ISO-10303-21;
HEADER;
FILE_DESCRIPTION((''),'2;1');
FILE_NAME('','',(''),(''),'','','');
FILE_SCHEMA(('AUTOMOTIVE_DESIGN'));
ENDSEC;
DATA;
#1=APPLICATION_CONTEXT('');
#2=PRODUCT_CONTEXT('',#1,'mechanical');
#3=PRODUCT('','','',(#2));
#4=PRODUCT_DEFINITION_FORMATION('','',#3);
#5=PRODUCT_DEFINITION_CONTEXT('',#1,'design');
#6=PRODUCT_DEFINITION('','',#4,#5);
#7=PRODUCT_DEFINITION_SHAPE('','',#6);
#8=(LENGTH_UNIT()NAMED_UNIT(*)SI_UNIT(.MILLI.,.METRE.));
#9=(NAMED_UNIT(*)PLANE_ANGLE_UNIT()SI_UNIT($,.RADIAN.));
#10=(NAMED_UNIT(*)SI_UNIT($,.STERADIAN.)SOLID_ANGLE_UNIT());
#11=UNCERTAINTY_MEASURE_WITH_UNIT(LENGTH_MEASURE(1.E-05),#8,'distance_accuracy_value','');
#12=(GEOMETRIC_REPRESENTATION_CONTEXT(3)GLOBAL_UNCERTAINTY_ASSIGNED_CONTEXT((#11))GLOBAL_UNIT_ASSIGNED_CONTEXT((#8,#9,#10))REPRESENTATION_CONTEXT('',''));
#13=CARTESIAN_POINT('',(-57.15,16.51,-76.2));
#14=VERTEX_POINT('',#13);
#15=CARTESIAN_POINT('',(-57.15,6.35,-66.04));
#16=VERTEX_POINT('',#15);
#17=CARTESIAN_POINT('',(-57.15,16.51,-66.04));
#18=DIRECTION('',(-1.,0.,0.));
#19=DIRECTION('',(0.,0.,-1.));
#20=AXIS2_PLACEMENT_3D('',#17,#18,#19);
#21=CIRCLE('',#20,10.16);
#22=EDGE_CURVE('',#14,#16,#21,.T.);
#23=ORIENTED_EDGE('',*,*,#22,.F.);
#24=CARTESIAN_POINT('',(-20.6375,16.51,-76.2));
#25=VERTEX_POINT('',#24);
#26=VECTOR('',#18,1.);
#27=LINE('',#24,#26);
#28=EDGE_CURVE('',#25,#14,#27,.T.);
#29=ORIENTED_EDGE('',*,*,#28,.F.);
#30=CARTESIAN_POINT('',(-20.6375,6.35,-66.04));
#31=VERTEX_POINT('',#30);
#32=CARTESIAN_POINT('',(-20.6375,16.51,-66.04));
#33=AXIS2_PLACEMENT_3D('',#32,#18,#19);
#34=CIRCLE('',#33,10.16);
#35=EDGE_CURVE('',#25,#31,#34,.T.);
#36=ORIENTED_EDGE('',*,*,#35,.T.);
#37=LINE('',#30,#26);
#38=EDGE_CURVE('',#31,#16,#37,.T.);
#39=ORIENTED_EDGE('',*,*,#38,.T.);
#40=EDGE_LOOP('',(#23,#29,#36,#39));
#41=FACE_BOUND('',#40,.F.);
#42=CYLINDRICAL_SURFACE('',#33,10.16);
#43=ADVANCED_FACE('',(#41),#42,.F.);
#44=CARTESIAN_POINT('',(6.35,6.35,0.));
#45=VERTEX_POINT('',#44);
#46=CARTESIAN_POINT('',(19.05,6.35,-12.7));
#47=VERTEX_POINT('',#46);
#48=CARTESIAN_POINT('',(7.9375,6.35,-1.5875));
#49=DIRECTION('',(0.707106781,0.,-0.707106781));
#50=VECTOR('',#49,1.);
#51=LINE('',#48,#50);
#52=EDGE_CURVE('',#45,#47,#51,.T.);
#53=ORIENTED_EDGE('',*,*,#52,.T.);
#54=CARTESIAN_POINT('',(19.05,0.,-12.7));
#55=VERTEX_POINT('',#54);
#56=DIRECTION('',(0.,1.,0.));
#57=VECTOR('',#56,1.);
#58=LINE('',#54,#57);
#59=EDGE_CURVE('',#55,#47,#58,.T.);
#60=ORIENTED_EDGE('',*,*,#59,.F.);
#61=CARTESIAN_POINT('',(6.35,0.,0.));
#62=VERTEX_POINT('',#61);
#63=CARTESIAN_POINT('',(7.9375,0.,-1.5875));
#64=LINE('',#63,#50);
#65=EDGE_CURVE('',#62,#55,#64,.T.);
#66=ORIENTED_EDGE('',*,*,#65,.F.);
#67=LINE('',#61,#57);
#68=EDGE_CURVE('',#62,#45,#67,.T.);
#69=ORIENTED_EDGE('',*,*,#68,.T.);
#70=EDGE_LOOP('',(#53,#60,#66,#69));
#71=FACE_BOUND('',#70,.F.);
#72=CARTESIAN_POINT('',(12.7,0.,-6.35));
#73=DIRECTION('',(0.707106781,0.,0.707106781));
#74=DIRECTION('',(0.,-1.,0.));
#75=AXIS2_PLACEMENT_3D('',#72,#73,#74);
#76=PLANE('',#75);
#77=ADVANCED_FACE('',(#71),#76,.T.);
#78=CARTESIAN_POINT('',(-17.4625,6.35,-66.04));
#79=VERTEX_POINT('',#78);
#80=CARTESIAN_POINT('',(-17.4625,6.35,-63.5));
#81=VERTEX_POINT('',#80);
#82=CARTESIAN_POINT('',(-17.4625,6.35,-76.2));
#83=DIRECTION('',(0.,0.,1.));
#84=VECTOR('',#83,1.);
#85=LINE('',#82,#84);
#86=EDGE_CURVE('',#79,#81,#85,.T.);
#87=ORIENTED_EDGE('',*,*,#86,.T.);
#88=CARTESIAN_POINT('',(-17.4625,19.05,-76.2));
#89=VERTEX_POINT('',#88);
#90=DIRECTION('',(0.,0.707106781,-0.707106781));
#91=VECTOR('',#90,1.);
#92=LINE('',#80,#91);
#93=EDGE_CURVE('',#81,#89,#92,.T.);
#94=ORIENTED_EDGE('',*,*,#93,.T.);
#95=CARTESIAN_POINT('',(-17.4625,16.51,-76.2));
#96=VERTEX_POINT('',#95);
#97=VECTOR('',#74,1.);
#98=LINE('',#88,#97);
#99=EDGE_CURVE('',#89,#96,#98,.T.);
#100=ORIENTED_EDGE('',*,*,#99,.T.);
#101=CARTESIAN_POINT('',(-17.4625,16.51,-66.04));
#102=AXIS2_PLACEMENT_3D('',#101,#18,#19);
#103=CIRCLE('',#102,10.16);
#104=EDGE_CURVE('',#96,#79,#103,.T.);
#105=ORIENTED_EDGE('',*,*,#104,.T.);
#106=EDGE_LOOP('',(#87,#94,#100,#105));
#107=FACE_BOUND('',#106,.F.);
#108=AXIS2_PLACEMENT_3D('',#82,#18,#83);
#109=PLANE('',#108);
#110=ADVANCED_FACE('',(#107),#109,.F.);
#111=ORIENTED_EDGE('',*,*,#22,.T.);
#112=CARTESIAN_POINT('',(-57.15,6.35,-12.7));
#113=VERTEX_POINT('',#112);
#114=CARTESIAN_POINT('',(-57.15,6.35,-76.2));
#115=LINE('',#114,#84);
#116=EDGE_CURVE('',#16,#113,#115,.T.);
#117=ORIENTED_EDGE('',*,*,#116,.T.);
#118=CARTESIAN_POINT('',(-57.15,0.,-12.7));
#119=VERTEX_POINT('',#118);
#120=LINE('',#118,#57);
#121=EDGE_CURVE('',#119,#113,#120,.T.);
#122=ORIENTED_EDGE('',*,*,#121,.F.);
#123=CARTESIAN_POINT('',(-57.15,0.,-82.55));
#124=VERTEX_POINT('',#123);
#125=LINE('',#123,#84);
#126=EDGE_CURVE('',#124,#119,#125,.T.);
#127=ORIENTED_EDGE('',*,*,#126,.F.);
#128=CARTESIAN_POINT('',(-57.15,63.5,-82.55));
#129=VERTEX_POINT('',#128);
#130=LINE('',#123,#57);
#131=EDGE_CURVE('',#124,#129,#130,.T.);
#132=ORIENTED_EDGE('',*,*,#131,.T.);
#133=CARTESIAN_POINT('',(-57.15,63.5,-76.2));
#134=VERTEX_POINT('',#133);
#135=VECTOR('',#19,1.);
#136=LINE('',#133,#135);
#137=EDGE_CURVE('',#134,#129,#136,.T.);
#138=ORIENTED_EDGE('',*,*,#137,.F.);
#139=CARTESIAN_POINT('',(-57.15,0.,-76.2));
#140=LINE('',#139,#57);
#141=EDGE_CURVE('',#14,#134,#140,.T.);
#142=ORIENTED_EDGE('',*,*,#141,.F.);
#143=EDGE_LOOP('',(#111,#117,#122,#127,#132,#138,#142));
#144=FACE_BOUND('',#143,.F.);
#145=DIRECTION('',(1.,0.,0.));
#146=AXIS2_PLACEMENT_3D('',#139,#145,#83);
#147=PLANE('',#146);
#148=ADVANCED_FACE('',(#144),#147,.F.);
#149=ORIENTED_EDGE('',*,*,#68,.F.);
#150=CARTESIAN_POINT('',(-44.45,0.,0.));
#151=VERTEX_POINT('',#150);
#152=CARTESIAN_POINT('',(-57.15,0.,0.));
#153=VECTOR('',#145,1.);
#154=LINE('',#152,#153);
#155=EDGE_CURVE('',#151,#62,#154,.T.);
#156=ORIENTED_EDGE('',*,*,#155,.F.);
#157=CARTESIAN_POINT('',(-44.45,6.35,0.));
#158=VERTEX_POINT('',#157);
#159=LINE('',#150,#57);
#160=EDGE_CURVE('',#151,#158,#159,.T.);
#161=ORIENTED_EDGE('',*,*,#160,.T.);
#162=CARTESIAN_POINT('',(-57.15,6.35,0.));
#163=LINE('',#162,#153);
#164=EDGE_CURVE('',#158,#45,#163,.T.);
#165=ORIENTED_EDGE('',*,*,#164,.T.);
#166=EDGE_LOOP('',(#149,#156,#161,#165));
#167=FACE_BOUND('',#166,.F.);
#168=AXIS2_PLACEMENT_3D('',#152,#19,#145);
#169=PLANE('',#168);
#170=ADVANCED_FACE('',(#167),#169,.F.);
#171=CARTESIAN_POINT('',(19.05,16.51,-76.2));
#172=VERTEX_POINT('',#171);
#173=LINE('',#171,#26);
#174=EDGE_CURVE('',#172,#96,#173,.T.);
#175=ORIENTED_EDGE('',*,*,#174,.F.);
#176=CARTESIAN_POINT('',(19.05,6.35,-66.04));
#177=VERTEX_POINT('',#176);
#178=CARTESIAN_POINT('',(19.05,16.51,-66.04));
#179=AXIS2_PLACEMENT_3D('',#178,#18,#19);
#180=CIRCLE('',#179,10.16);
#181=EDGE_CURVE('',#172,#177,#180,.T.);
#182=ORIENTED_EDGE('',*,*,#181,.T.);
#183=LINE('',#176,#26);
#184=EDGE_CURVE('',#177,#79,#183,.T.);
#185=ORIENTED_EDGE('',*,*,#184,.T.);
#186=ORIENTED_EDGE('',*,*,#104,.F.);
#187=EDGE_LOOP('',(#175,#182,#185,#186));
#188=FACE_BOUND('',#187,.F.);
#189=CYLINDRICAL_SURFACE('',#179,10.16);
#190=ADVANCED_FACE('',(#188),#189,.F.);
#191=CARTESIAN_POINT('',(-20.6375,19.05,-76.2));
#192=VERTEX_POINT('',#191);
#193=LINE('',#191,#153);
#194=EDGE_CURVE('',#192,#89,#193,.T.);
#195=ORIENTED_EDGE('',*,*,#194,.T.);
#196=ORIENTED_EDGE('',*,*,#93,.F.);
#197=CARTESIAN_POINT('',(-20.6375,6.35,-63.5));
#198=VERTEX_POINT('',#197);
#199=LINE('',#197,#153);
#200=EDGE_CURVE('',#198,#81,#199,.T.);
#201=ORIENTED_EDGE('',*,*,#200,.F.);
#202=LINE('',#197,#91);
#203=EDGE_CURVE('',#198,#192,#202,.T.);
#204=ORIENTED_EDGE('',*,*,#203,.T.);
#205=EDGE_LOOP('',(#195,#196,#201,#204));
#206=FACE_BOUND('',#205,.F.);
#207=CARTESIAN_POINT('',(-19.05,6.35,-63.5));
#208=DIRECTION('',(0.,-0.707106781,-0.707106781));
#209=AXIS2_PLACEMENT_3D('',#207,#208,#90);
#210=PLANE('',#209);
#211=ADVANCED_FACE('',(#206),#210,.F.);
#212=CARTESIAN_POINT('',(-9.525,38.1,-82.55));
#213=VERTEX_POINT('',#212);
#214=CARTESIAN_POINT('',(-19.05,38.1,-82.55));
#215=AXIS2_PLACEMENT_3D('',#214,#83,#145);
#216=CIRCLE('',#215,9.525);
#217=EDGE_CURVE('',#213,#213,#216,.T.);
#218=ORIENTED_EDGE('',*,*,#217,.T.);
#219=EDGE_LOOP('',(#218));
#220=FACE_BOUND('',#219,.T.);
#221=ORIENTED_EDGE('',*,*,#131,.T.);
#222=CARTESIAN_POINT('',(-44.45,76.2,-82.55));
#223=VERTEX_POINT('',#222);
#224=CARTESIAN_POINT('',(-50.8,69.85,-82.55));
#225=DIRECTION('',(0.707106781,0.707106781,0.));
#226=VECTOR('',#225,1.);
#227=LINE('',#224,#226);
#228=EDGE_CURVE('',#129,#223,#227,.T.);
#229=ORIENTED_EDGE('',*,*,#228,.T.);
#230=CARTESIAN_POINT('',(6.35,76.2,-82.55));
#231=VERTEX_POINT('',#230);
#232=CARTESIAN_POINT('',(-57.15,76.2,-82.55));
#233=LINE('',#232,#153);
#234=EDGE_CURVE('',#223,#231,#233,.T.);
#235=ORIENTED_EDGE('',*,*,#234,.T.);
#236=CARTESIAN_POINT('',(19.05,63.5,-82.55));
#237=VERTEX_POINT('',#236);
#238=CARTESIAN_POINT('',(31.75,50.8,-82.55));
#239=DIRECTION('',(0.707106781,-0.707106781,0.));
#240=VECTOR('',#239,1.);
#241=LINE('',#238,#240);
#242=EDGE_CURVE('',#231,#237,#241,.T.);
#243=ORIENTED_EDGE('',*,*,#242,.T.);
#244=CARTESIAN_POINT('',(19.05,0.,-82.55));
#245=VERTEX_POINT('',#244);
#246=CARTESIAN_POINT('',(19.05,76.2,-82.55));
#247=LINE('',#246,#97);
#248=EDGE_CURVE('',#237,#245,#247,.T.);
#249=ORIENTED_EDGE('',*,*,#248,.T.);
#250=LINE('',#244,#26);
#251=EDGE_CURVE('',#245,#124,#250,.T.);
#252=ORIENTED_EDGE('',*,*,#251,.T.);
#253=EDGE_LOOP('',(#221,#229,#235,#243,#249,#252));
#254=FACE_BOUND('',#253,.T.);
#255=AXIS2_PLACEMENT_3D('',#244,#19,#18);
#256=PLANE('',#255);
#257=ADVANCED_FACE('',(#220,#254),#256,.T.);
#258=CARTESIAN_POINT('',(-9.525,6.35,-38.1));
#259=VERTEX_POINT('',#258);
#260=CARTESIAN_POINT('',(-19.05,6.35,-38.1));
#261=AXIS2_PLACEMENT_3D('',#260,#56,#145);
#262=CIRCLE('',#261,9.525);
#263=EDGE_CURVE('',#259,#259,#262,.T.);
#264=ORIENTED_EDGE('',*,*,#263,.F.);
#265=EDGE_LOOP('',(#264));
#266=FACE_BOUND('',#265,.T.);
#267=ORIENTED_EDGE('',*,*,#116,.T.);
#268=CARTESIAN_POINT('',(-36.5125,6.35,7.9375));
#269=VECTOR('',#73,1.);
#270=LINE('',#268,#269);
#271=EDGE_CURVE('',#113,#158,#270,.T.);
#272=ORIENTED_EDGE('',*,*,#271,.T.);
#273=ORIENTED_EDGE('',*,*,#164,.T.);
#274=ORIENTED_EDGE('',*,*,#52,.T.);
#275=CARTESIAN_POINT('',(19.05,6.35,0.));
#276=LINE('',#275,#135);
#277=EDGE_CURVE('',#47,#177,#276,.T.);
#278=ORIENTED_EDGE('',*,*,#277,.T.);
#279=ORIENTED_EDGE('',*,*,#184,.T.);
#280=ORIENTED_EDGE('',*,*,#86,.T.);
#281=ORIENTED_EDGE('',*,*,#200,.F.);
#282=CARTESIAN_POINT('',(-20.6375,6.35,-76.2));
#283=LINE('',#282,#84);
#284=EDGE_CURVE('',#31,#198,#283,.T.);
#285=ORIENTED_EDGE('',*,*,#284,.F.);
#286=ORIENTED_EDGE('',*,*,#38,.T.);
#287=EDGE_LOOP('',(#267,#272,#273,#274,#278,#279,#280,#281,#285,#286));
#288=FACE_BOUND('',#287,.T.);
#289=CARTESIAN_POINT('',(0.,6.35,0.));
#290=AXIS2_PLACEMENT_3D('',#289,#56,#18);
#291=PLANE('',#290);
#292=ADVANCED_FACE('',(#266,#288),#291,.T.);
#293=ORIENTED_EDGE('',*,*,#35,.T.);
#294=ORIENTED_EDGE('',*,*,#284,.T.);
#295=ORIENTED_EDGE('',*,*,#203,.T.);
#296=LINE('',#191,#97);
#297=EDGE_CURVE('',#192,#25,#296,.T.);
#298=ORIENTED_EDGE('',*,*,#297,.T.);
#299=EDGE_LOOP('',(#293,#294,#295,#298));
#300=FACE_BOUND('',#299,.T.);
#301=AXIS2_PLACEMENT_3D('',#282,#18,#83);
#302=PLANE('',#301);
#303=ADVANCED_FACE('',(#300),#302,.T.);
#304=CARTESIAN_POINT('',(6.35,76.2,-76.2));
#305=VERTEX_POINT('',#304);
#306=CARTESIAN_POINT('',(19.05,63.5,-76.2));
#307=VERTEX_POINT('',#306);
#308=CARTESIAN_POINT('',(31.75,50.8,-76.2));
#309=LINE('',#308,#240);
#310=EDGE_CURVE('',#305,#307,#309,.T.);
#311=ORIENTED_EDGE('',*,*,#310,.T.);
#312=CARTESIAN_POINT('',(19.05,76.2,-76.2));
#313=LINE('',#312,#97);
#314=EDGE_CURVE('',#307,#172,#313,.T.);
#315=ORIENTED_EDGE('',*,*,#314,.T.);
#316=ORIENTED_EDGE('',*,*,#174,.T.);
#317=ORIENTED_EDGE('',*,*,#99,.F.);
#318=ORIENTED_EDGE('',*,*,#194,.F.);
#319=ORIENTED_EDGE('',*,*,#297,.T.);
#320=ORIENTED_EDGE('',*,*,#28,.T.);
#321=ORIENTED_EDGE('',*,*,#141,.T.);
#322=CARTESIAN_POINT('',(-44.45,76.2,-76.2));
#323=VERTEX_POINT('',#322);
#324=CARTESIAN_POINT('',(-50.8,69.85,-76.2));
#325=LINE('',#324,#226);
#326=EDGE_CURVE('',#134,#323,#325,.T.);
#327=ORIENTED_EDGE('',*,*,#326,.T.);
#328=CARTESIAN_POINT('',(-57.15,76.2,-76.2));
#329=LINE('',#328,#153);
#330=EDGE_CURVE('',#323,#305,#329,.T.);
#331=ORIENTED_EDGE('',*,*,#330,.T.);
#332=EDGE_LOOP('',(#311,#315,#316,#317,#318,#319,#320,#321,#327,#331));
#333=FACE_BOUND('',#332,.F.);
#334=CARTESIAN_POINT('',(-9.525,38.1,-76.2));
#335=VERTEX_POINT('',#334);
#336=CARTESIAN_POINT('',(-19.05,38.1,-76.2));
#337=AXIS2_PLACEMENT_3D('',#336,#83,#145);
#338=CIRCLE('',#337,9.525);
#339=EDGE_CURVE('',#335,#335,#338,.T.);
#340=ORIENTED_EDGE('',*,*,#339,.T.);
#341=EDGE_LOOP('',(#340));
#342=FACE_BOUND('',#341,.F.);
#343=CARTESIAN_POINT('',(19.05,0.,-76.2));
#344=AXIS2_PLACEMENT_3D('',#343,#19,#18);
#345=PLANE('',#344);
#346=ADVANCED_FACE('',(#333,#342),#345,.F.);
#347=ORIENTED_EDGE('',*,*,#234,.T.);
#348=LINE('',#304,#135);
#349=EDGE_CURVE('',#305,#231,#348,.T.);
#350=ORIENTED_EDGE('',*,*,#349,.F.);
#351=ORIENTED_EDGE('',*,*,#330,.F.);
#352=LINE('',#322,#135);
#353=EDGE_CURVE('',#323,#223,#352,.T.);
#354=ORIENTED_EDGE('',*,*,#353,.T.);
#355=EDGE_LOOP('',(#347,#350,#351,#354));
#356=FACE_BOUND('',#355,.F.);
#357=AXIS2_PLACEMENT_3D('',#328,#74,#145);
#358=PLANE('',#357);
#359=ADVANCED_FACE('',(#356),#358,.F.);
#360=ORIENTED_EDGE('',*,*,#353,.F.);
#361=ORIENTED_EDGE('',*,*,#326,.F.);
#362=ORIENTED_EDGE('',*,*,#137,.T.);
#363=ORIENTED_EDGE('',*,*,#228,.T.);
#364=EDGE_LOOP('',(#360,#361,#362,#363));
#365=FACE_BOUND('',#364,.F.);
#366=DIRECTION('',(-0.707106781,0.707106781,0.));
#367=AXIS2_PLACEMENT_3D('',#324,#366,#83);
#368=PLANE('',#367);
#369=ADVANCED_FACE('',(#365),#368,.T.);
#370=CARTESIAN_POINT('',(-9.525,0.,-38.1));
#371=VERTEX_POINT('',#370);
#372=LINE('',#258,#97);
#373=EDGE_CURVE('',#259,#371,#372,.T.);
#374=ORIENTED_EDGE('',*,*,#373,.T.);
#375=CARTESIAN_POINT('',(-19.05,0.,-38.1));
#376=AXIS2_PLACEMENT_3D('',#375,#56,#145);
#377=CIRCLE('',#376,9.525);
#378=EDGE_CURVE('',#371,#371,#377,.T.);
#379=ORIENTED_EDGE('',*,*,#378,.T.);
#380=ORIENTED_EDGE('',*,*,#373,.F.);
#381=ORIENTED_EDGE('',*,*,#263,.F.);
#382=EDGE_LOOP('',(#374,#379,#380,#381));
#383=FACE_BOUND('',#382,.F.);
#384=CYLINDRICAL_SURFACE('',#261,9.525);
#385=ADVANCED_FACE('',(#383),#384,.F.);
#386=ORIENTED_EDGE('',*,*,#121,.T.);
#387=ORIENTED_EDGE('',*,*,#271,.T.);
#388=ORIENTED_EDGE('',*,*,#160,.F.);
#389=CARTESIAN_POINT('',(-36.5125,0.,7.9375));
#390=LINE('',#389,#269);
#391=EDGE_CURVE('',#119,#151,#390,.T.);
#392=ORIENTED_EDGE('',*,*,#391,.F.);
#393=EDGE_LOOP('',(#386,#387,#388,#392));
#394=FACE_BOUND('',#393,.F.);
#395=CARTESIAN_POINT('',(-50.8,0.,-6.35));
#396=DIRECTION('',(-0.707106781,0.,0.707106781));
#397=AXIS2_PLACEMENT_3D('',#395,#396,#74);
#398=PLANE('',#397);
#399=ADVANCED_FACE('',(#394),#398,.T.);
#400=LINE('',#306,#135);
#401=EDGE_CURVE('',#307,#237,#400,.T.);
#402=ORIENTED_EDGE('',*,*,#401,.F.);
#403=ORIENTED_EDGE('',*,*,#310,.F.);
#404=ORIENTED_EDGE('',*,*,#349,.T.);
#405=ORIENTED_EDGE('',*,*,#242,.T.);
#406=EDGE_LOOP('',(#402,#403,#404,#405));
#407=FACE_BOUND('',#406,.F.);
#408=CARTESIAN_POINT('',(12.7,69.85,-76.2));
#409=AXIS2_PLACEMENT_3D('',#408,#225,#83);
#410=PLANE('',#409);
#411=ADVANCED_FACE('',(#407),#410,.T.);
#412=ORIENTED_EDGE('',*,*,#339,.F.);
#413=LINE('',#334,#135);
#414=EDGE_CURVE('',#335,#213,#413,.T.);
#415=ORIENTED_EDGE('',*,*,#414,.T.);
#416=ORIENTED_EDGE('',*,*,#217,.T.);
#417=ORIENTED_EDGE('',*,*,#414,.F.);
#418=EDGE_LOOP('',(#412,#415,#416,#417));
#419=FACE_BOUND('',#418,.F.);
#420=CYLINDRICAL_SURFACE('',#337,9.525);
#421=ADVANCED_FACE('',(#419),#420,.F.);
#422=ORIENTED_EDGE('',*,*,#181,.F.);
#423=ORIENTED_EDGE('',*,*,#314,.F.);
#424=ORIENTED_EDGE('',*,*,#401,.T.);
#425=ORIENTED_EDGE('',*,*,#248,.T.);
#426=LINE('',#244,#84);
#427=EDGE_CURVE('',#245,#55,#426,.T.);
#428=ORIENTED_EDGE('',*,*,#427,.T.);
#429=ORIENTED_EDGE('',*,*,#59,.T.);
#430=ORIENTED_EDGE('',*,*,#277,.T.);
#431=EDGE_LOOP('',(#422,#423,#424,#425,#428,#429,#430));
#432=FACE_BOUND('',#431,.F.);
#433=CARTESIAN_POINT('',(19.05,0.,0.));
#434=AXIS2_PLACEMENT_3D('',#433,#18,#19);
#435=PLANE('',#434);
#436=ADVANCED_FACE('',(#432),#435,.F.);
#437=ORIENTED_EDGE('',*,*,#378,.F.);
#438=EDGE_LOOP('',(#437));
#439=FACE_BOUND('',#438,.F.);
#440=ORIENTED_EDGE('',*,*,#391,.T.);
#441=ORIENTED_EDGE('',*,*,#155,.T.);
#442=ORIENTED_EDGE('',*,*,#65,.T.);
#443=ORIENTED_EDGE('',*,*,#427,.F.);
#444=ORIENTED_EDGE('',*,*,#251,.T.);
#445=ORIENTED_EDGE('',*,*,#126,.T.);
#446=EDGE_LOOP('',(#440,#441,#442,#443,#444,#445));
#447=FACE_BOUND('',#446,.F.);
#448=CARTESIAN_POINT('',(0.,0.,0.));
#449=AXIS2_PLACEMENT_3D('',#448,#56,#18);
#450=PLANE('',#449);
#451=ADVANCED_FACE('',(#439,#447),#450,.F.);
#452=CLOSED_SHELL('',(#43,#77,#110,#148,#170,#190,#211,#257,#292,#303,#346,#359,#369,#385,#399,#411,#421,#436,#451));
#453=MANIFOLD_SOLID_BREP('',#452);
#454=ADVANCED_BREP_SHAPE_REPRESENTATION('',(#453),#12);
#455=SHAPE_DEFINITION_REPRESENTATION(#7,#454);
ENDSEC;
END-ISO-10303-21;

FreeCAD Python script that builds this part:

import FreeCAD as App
import Part
import Sketcher
from FreeCAD import Vector
Q = App.Units.Quantity


def edges_at(feature, points):
    """Names of the edges that pass closest to the given points."""
    edges = feature.Shape.Edges
    near = lambda p: min(range(len(edges)), key=lambda i: edges[i].distToShape(Part.Vertex(*p))[0])
    return sorted({f"Edge{near(p) + 1}" for p in points})


def add_polygon(sketch, points):
    """Adds a closed chain of lines whose ends are joined by coincident constraints."""
    first, n = sketch.GeometryCount, len(points)
    for a, b in zip(points, points[1:] + points[:1]):
        sketch.addGeometry(Part.LineSegment(App.Vector(*a, 0), App.Vector(*b, 0)), False)
    for i in range(n):
        sketch.addConstraint(Sketcher.Constraint("Coincident", first + i, 2, first + (i + 1) % n, 1))

doc = App.newDocument("Part")
body = doc.addObject("PartDesign::Body", "Body")

sketch1 = body.newObject("Sketcher::SketchObject", "Sketch")
sketch1.AttachmentSupport = (doc.getObject("XZ_Plane"), [""])
sketch1.MapMode = "FlatFace"
add_polygon(sketch1, [(-57.15, -76.2), (-57.15, 0), (19.05, 0), (19.05, -76.2)])
sketch1.addConstraint(Sketcher.Constraint("Vertical", 0))
sketch1.addConstraint(Sketcher.Constraint("Horizontal", 1))
sketch1.addConstraint(Sketcher.Constraint("Vertical", 2))
sketch1.addConstraint(Sketcher.Constraint("Horizontal", 3))
sketch1.addConstraint(Sketcher.Constraint("PointOnObject", 0, 2, -1))
sketch1.addConstraint(Sketcher.Constraint("Equal", 3, 0))
sketch1.addConstraint(Sketcher.Constraint("DistanceX", 1, 1, 1, 2, Q("3 in")))
sketch1.addConstraint(Sketcher.Constraint("DistanceX", 0, 2, -1, 1, Q("2.25 in")))
pad1 = body.newObject("PartDesign::Pad", "Pad")
pad1.Profile = sketch1
pad1.Length = Q("0.25 in")
pad1.Reversed = True

sketch2 = body.newObject("Sketcher::SketchObject", "Sketch001")
sketch2.AttachmentSupport = (doc.getObject("XY_Plane"), [""])
sketch2.MapMode = "FlatFace"
sketch2.AttachmentOffset = App.Placement(Vector(0, 0, -3 * 25.4), App.Rotation())
add_polygon(sketch2, [(19.05, 76.2), (19.05, 0), (-57.15, 0), (-57.15, 76.2)])
sketch2.addConstraint(Sketcher.Constraint("Vertical", 0))
sketch2.addConstraint(Sketcher.Constraint("Horizontal", 1))
sketch2.addConstraint(Sketcher.Constraint("Vertical", 2))
sketch2.addConstraint(Sketcher.Constraint("Horizontal", 3))
sketch2.addConstraint(Sketcher.Constraint("PointOnObject", 0, 2, -1))
sketch2.addConstraint(Sketcher.Constraint("Equal", 3, 0))
sketch2.addConstraint(Sketcher.Constraint("DistanceX", 1, 2, 1, 1, Q("3 in")))
sketch2.addConstraint(Sketcher.Constraint("DistanceX", -1, 1, 0, 2, Q("0.75 in")))
pad2 = body.newObject("PartDesign::Pad", "Pad001")
pad2.Profile = sketch2
pad2.Length = Q("0.25 in")
pad2.Reversed = True

sketch3 = body.newObject("Sketcher::SketchObject", "Sketch002")
sketch3.AttachmentSupport = (doc.getObject("XZ_Plane"), [""])
sketch3.MapMode = "FlatFace"
sketch3.AttachmentOffset = App.Placement(Vector(0, 0, -0.25 * 25.4), App.Rotation())
sketch3.addGeometry(Part.Circle(Vector(-19.05, -38.1, 0), Vector(0, 0, 1), 9.525), False)
sketch3.addConstraint(Sketcher.Constraint("Diameter", 0, Q("0.75 in")))
sketch3.addConstraint(Sketcher.Constraint("DistanceY", 0, 3, -1, 1, Q("1.5 in")))
sketch3.addConstraint(Sketcher.Constraint("DistanceX", 0, 3, -1, 1, Q("0.75 in")))
pocket1 = body.newObject("PartDesign::Pocket", "Pocket")
pocket1.Profile = sketch3
pocket1.Length = Q("0.25 in")
pocket1.Reversed = True

sketch4 = body.newObject("Sketcher::SketchObject", "Sketch003")
sketch4.AttachmentSupport = (doc.getObject("XY_Plane"), [""])
sketch4.MapMode = "FlatFace"
sketch4.AttachmentOffset = App.Placement(Vector(0, 0, -3 * 25.4), App.Rotation())
sketch4.addGeometry(Part.Circle(Vector(-19.05, 38.1, 0), Vector(0, 0, 1), 9.525), False)
sketch4.addConstraint(Sketcher.Constraint("Diameter", 0, Q("0.75 in")))
sketch4.addConstraint(Sketcher.Constraint("DistanceY", -1, 1, 0, 3, Q("1.5 in")))
sketch4.addConstraint(Sketcher.Constraint("DistanceX", 0, 3, -1, 1, Q("0.75 in")))
pocket2 = body.newObject("PartDesign::Pocket", "Pocket001")
pocket2.Profile = sketch4
pocket2.Length = Q("0.25 in")
doc.recompute()

chamfer = body.newObject("PartDesign::Chamfer", "Chamfer")
chamfer.Base = (pocket2, edges_at(pocket2, [(19.05, 76.2, -79.375), (-57.15, 76.2, -79.375)]))
chamfer.Size = Q("0.5 in")

sketch5 = body.newObject("Sketcher::SketchObject", "Sketch004")
sketch5.AttachmentSupport = (doc.getObject("YZ_Plane"), [""])
sketch5.MapMode = "FlatFace"
sketch5.AttachmentOffset = App.Placement(Vector(0, 0, -0.75 * 25.4), App.Rotation())
add_polygon(sketch5, [(19.05, -76.2), (6.35, -76.2), (6.35, -63.5)])
sketch5.addConstraint(Sketcher.Constraint("Horizontal", 0))
sketch5.addConstraint(Sketcher.Constraint("Vertical", 1))
sketch5.addConstraint(Sketcher.Constraint("Equal", 0, 1))
sketch5.addConstraint(Sketcher.Constraint("DistanceX", 0, 2, 0, 1, Q("0.5 in")))
sketch5.addConstraint(Sketcher.Constraint("DistanceY", 0, 2, -1, 1, Q("3 in")))
sketch5.addConstraint(Sketcher.Constraint("DistanceX", -1, 1, 0, 2, Q("0.25 in")))
pad3 = body.newObject("PartDesign::Pad", "Pad002")
pad3.Profile = sketch5
pad3.Length = Q("0.125 in")
pad3.Midplane = True
doc.recompute()

fillet = body.newObject("PartDesign::Fillet", "Fillet")
fillet.Base = (pad3, edges_at(pad3, [(-38.894, 6.35, -76.2), (0.794, 6.35, -76.2)]))
fillet.Radius = Q("0.4 in")
doc.recompute()

chamfer2 = body.newObject("PartDesign::Chamfer", "Chamfer001")
chamfer2.Base = (fillet, edges_at(fillet, [(-57.15, 3.175, 0), (19.05, 3.175, 0)]))
chamfer2.Size = Q("0.5 in")

doc.recompute()
